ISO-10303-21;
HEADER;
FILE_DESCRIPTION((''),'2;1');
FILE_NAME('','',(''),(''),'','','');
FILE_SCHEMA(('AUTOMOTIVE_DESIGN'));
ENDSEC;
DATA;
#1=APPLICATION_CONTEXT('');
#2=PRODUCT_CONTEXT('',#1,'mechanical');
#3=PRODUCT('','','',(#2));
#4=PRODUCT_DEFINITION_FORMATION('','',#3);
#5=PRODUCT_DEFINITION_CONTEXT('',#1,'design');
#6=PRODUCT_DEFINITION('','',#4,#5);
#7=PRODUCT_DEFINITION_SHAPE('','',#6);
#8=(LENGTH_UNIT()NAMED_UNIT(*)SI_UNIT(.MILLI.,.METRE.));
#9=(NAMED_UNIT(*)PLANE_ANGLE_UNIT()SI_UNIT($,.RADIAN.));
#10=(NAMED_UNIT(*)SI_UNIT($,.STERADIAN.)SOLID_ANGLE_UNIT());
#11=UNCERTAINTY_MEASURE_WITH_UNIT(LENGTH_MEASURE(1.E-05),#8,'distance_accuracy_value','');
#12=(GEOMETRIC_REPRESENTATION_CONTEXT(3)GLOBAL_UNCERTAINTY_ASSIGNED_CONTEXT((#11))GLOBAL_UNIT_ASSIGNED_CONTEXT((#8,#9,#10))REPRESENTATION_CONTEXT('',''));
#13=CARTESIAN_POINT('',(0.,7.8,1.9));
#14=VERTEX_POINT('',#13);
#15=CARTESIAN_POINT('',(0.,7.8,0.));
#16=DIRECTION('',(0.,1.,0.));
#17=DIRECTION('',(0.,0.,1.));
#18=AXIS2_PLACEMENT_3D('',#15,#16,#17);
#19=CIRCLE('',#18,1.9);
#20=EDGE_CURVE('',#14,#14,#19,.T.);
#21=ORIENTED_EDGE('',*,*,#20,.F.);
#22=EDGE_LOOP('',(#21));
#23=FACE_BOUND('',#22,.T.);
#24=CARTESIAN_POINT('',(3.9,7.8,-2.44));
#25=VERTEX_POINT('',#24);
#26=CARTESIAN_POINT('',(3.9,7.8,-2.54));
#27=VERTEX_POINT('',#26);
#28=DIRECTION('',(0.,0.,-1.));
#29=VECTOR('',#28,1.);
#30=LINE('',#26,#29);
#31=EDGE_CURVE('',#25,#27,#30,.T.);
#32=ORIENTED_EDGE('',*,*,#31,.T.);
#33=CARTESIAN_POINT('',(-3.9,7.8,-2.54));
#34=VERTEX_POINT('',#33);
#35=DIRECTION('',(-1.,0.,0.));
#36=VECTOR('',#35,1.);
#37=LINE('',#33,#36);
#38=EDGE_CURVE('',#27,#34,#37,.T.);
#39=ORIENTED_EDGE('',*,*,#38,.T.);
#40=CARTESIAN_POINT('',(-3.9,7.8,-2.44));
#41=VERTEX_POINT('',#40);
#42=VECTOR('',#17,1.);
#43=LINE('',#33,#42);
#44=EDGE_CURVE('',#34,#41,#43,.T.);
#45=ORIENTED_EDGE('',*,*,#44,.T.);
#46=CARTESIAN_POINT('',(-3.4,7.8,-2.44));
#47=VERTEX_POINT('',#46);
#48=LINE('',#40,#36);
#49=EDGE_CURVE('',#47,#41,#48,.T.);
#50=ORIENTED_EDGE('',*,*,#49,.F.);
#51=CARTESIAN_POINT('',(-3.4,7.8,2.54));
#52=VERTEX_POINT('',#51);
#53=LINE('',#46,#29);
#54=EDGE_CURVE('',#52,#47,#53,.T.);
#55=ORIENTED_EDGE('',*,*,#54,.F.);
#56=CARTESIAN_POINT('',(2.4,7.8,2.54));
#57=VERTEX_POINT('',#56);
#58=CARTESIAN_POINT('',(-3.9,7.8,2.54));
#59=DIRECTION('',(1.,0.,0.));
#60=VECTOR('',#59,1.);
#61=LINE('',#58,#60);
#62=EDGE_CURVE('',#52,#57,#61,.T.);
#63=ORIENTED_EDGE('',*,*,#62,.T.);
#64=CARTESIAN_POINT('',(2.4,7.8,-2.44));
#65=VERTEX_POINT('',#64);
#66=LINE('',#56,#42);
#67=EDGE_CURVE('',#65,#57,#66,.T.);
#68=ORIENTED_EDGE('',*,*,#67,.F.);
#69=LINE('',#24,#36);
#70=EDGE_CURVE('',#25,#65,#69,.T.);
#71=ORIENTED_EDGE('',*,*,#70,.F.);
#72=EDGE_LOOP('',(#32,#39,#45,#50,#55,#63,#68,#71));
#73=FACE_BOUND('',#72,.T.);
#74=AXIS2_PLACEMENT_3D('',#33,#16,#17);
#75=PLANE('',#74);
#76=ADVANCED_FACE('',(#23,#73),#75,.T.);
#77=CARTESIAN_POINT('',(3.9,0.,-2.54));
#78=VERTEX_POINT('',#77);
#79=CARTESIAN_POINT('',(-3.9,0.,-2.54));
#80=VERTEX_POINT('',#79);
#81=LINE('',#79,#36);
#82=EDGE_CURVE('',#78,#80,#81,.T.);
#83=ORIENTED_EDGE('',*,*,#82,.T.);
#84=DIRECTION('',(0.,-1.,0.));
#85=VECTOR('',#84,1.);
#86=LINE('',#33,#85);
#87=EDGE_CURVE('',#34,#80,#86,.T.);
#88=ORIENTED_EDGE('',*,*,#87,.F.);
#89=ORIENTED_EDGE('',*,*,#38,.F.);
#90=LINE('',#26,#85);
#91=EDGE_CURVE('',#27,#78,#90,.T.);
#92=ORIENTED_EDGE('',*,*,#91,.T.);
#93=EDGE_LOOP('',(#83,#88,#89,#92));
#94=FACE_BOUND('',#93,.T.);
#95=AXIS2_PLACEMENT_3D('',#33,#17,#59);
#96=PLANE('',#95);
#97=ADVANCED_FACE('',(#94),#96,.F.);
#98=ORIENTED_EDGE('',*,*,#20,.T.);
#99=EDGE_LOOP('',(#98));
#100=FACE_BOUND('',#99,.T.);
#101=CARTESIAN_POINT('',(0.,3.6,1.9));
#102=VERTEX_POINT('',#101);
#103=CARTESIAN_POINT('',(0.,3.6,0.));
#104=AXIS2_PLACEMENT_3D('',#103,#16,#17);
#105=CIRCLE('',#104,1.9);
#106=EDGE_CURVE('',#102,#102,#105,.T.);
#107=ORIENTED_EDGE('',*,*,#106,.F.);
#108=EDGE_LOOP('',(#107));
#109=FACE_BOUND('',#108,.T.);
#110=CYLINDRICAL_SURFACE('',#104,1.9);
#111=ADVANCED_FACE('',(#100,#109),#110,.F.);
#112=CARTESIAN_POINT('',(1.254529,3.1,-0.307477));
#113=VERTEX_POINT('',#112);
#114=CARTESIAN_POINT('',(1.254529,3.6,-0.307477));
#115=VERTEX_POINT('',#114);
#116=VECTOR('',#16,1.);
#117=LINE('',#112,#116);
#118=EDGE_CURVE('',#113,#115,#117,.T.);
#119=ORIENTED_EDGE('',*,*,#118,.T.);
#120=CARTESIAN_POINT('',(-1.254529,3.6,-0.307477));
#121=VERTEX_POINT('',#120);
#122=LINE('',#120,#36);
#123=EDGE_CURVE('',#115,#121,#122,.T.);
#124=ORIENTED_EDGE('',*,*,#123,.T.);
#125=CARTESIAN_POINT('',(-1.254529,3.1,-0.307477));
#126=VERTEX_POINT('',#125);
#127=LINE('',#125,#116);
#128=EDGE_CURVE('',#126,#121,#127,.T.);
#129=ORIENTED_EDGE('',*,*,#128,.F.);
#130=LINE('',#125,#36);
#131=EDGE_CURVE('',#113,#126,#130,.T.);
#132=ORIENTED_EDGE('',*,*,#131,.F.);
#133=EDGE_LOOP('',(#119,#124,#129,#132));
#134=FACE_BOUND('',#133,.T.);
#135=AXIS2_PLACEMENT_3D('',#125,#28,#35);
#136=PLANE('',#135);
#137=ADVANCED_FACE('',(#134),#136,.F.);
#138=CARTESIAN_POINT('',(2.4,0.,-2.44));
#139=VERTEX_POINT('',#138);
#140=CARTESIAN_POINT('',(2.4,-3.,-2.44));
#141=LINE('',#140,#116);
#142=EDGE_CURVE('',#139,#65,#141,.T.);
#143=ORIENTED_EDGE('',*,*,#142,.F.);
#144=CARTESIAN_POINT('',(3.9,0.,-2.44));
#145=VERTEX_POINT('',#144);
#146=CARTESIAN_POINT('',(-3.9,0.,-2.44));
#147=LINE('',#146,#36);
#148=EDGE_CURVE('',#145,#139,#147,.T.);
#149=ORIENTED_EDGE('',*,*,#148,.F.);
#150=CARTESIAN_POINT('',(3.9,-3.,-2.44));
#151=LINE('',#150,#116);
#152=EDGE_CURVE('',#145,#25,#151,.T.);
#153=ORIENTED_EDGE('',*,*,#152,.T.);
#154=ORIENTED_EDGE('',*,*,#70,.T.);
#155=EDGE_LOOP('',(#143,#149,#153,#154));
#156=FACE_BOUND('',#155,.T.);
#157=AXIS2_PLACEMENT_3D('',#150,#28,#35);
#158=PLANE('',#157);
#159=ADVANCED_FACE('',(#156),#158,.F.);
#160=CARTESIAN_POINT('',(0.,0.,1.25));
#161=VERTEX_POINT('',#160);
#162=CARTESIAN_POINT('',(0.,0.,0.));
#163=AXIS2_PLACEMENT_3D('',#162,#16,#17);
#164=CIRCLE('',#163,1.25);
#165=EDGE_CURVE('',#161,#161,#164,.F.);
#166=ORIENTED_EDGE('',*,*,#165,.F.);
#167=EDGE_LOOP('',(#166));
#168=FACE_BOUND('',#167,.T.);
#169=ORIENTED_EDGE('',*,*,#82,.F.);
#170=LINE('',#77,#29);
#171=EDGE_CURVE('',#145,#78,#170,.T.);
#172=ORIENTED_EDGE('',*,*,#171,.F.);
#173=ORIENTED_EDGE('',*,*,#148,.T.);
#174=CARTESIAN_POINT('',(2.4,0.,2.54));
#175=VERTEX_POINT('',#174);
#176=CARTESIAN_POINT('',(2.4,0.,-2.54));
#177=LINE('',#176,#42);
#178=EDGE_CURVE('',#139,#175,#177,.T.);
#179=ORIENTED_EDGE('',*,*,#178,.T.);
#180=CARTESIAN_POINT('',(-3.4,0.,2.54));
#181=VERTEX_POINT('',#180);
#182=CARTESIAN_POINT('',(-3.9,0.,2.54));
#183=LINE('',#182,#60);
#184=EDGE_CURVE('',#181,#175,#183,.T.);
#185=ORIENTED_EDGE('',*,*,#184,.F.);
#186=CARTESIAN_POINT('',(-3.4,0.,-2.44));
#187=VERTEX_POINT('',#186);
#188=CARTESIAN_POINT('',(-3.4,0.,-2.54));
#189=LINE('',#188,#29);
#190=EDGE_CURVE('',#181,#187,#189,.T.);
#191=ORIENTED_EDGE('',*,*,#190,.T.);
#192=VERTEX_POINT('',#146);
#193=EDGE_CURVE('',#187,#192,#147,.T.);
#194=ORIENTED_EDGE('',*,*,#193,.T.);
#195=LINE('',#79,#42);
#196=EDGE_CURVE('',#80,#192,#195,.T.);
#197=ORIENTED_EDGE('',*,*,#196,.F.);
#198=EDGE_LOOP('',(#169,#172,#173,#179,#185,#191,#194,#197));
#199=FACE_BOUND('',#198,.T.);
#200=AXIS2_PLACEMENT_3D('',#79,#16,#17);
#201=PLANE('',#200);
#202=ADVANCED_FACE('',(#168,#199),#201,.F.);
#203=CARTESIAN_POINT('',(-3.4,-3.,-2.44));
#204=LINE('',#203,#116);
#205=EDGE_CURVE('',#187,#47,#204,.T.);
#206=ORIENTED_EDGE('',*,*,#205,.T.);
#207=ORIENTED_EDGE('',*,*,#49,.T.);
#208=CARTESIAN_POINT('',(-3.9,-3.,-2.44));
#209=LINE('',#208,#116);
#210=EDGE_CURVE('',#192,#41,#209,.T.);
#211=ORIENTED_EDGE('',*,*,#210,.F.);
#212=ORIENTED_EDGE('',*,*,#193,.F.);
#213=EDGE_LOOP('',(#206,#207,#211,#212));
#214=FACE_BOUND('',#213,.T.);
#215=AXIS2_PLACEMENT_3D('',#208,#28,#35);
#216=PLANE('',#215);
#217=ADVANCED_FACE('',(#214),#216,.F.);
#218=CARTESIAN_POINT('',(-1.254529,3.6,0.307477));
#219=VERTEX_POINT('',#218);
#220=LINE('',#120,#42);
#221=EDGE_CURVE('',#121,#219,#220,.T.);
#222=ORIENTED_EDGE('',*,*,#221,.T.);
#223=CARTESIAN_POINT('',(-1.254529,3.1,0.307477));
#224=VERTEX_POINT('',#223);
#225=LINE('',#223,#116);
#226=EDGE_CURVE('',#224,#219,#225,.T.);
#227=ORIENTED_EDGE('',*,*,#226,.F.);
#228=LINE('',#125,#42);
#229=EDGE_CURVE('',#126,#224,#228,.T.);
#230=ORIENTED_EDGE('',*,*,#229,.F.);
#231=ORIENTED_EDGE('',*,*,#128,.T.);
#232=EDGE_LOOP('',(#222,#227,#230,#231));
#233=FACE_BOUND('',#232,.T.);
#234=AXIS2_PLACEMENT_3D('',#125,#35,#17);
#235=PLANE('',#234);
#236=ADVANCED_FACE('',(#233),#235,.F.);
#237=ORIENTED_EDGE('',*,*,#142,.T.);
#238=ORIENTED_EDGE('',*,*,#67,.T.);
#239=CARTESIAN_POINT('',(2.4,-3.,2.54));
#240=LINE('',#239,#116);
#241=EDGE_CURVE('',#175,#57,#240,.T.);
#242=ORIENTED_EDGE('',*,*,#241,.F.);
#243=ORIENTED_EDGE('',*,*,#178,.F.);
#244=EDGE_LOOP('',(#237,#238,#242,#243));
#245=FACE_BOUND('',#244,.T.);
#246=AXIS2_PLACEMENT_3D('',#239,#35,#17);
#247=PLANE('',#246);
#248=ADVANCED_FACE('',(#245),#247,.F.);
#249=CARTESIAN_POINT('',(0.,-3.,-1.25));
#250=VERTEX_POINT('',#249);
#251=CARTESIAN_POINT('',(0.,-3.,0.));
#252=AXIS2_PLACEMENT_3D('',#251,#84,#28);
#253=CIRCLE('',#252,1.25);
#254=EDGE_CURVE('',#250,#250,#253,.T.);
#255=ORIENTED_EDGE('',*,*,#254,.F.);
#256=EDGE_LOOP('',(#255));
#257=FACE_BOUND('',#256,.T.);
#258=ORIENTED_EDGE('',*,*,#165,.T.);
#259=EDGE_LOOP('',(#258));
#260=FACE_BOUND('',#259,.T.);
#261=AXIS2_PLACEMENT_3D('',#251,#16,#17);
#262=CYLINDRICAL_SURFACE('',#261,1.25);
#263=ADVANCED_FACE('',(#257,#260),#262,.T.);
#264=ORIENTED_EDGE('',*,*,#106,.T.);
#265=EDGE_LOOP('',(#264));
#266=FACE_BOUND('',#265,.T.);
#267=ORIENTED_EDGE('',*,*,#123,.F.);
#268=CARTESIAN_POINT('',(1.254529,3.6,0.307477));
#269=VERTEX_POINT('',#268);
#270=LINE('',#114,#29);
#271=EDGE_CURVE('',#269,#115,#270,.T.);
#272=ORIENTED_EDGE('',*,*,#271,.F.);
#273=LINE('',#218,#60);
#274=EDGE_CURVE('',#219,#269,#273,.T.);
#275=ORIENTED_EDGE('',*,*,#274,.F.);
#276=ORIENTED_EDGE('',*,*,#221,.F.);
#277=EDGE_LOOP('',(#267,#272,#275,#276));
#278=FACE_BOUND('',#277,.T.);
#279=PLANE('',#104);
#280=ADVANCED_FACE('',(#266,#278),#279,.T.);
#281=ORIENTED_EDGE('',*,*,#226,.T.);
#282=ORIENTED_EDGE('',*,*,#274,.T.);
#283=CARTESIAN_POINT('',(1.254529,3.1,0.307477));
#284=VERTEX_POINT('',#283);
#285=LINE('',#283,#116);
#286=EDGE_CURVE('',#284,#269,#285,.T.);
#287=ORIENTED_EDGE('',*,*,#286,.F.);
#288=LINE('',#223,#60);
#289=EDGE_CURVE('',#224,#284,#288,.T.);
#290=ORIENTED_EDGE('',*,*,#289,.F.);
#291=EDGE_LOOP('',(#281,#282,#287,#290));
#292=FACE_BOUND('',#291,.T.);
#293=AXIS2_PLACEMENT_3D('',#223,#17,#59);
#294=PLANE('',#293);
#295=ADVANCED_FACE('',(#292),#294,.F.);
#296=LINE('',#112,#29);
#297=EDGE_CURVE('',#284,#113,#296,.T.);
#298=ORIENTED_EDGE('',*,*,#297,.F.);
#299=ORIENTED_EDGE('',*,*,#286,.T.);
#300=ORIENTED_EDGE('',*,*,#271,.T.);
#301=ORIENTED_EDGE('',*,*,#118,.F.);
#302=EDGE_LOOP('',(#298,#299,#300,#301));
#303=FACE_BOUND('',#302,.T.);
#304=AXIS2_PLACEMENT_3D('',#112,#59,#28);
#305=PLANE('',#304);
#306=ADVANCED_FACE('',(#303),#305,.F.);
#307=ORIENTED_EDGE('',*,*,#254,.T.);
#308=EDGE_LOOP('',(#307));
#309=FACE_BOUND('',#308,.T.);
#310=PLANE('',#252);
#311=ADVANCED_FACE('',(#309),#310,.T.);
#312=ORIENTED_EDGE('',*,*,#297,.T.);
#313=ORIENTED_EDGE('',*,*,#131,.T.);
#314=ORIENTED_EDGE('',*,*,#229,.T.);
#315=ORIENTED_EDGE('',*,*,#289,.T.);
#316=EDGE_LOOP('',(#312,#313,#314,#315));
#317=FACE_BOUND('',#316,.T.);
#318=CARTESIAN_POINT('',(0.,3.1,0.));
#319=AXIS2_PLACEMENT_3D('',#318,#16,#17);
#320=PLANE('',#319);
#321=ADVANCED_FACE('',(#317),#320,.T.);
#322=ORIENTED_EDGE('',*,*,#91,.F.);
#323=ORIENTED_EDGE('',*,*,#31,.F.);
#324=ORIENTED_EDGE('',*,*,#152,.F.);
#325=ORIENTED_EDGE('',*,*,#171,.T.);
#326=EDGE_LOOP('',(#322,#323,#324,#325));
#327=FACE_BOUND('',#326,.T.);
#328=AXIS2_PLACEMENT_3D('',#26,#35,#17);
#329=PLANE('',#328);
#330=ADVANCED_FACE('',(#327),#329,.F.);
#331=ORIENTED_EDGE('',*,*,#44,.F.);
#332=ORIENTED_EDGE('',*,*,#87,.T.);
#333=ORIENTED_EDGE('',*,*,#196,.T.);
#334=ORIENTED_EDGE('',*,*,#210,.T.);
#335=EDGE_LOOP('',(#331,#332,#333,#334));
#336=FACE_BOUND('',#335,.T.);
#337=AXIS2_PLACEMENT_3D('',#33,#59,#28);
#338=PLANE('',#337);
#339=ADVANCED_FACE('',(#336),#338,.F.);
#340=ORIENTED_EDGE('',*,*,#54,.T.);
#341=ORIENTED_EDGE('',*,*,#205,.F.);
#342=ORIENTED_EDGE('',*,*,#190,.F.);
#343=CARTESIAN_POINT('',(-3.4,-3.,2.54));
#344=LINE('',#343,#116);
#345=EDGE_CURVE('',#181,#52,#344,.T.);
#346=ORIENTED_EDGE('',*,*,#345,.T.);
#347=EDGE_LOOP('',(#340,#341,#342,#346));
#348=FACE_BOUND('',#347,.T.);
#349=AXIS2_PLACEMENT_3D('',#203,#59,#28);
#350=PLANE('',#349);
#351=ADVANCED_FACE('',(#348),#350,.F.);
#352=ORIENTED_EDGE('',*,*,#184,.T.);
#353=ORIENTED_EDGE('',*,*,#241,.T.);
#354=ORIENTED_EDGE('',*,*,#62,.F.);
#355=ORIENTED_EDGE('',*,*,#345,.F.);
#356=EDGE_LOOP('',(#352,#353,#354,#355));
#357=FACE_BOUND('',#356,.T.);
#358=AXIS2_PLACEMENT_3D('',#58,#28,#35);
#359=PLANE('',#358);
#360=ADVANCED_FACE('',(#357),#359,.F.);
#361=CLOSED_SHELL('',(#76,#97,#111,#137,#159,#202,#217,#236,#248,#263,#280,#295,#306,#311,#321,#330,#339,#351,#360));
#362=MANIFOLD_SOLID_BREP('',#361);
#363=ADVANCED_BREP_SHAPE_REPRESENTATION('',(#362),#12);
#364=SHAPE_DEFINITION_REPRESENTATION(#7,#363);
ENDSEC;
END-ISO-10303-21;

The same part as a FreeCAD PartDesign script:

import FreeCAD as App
import Part
import Sketcher
from FreeCAD import Vector
Q = App.Units.Quantity


def add_polygon(sketch, points):
    """Adds a closed chain of lines whose ends are joined by coincident constraints."""
    first, n = sketch.GeometryCount, len(points)
    for a, b in zip(points, points[1:] + points[:1]):
        sketch.addGeometry(Part.LineSegment(App.Vector(*a, 0), App.Vector(*b, 0)), False)
    for i in range(n):
        sketch.addConstraint(Sketcher.Constraint("Coincident", first + i, 2, first + (i + 1) % n, 1))

doc = App.newDocument("Part")
body = doc.addObject("PartDesign::Body", "Body")

sketch1 = body.newObject("Sketcher::SketchObject", "Sketch")
sketch1.AttachmentSupport = (doc.getObject("XZ_Plane"), [""])
sketch1.MapMode = "FlatFace"
add_polygon(sketch1, [(-3.9, -2.54), (-3.9, 2.54), (3.9, 2.54), (3.9, -2.54)])
sketch1.addConstraint(Sketcher.Constraint("Vertical", 0))
sketch1.addConstraint(Sketcher.Constraint("Horizontal", 1))
sketch1.addConstraint(Sketcher.Constraint("Vertical", 2))
sketch1.addConstraint(Sketcher.Constraint("Horizontal", 3))
sketch1.addConstraint(Sketcher.Constraint("Symmetric", 0, 2, 2, 2, -1, 1))
sketch1.addConstraint(Sketcher.Constraint("DistanceX", 1, 1, 1, 2, Q("7.8 mm")))
sketch1.addConstraint(Sketcher.Constraint("DistanceY", 0, 1, 0, 2, Q("5.08 mm")))
pad1 = body.newObject("PartDesign::Pad", "Pad")
pad1.Profile = sketch1
pad1.Length = 7.8
pad1.Reversed = True

sketch2 = body.newObject("Sketcher::SketchObject", "Sketch001")
sketch2.AttachmentSupport = (doc.getObject("XZ_Plane"), [""])
sketch2.MapMode = "FlatFace"
sketch2.AttachmentOffset = App.Placement(Vector(0, 0, -7.8), App.Rotation())
sketch2.addGeometry(Part.Circle(Vector(0, 0, 0), Vector(0, 0, 1), 1.9), False)
sketch2.addConstraint(Sketcher.Constraint("Coincident", 0, 3, -1, 1))
sketch2.addConstraint(Sketcher.Constraint("Diameter", 0, Q("3.8 mm")))
pocket1 = body.newObject("PartDesign::Pocket", "Pocket")
pocket1.Profile = sketch2
pocket1.Length = 4.2
pocket1.Reversed = True

sketch3 = body.newObject("Sketcher::SketchObject", "Sketch002")
sketch3.AttachmentSupport = (doc.getObject("XZ_Plane"), [""])
sketch3.MapMode = "FlatFace"
sketch3.AttachmentOffset = App.Placement(Vector(0, 0, -3.6), App.Rotation())
add_polygon(sketch3, [(-1.254529, -0.307477), (-1.254529, 0.307477), (1.254529, 0.307477), (1.254529, -0.307477)])
sketch3.addConstraint(Sketcher.Constraint("Vertical", 0))
sketch3.addConstraint(Sketcher.Constraint("Horizontal", 1))
sketch3.addConstraint(Sketcher.Constraint("Vertical", 2))
sketch3.addConstraint(Sketcher.Constraint("Horizontal", 3))
sketch3.addConstraint(Sketcher.Constraint("Symmetric", 0, 2, 2, 2, -1, 1))
sketch3.addConstraint(Sketcher.Constraint("DistanceX", 1, 1, 1, 2, Q("2.509058 mm")))
sketch3.addConstraint(Sketcher.Constraint("DistanceY", 0, 1, 0, 2, Q("0.614955 mm")))
pocket2 = body.newObject("PartDesign::Pocket", "Pocket001")
pocket2.Profile = sketch3
pocket2.Length = 0.5
pocket2.Reversed = True

sketch4 = body.newObject("Sketcher::SketchObject", "Sketch003")
sketch4.AttachmentSupport = (doc.getObject("XZ_Plane"), [""])
sketch4.MapMode = "FlatFace"
sketch4.addGeometry(Part.Circle(Vector(0, 0, 0), Vector(0, 0, 1), 1.25), False)
sketch4.addConstraint(Sketcher.Constraint("Coincident", 0, 3, -1, 1))
sketch4.addConstraint(Sketcher.Constraint("Diameter", 0, Q("2.5 mm")))
pad2 = body.newObject("PartDesign::Pad", "Pad001")
pad2.Profile = sketch4
pad2.Length = 3

sketch5 = body.newObject("Sketcher::SketchObject", "Sketch004")
sketch5.AttachmentSupport = (doc.getObject("XZ_Plane"), [""])
sketch5.MapMode = "FlatFace"
sketch5.AttachmentOffset = App.Placement(Vector(0, 0, -7.8), App.Rotation())
add_polygon(sketch5, [(-3.9, -2.44), (-3.9, 2.54), (-3.4, 2.54), (-3.4, -2.44)])
add_polygon(sketch5, [(2.4, -2.44), (2.4, 2.54), (3.9, 2.54), (3.9, -2.44)])
sketch5.addConstraint(Sketcher.Constraint("Vertical", 0))
sketch5.addConstraint(Sketcher.Constraint("Horizontal", 1))
sketch5.addConstraint(Sketcher.Constraint("Vertical", 2))
sketch5.addConstraint(Sketcher.Constraint("Horizontal", 3))
sketch5.addConstraint(Sketcher.Constraint("Vertical", 4))
sketch5.addConstraint(Sketcher.Constraint("Horizontal", 5))
sketch5.addConstraint(Sketcher.Constraint("Vertical", 6))
sketch5.addConstraint(Sketcher.Constraint("Horizontal", 7))
sketch5.addConstraint(Sketcher.Constraint("Symmetric", 0, 2, 5, 2, -2))
sketch5.addConstraint(Sketcher.Constraint("Horizontal", 3, 2, 6, 2))
sketch5.addConstraint(Sketcher.Constraint("DistanceX", 1, 1, 1, 2, Q("0.5 mm")))
sketch5.addConstraint(Sketcher.Constraint("DistanceX", 5, 1, 5, 2, Q("1.5 mm")))
sketch5.addConstraint(Sketcher.Constraint("DistanceY", 0, 1, 0, 2, Q("4.98 mm")))
sketch5.addConstraint(Sketcher.Constraint("DistanceX", 0, 2, -1, 1, Q("3.9 mm")))
sketch5.addConstraint(Sketcher.Constraint("DistanceY", -1, 1, 0, 2, Q("2.54 mm")))
pocket3 = body.newObject("PartDesign::Pocket", "Pocket002")
pocket3.Profile = sketch5
pocket3.Type = "ThroughAll"
pocket3.Reversed = True

doc.recompute()
